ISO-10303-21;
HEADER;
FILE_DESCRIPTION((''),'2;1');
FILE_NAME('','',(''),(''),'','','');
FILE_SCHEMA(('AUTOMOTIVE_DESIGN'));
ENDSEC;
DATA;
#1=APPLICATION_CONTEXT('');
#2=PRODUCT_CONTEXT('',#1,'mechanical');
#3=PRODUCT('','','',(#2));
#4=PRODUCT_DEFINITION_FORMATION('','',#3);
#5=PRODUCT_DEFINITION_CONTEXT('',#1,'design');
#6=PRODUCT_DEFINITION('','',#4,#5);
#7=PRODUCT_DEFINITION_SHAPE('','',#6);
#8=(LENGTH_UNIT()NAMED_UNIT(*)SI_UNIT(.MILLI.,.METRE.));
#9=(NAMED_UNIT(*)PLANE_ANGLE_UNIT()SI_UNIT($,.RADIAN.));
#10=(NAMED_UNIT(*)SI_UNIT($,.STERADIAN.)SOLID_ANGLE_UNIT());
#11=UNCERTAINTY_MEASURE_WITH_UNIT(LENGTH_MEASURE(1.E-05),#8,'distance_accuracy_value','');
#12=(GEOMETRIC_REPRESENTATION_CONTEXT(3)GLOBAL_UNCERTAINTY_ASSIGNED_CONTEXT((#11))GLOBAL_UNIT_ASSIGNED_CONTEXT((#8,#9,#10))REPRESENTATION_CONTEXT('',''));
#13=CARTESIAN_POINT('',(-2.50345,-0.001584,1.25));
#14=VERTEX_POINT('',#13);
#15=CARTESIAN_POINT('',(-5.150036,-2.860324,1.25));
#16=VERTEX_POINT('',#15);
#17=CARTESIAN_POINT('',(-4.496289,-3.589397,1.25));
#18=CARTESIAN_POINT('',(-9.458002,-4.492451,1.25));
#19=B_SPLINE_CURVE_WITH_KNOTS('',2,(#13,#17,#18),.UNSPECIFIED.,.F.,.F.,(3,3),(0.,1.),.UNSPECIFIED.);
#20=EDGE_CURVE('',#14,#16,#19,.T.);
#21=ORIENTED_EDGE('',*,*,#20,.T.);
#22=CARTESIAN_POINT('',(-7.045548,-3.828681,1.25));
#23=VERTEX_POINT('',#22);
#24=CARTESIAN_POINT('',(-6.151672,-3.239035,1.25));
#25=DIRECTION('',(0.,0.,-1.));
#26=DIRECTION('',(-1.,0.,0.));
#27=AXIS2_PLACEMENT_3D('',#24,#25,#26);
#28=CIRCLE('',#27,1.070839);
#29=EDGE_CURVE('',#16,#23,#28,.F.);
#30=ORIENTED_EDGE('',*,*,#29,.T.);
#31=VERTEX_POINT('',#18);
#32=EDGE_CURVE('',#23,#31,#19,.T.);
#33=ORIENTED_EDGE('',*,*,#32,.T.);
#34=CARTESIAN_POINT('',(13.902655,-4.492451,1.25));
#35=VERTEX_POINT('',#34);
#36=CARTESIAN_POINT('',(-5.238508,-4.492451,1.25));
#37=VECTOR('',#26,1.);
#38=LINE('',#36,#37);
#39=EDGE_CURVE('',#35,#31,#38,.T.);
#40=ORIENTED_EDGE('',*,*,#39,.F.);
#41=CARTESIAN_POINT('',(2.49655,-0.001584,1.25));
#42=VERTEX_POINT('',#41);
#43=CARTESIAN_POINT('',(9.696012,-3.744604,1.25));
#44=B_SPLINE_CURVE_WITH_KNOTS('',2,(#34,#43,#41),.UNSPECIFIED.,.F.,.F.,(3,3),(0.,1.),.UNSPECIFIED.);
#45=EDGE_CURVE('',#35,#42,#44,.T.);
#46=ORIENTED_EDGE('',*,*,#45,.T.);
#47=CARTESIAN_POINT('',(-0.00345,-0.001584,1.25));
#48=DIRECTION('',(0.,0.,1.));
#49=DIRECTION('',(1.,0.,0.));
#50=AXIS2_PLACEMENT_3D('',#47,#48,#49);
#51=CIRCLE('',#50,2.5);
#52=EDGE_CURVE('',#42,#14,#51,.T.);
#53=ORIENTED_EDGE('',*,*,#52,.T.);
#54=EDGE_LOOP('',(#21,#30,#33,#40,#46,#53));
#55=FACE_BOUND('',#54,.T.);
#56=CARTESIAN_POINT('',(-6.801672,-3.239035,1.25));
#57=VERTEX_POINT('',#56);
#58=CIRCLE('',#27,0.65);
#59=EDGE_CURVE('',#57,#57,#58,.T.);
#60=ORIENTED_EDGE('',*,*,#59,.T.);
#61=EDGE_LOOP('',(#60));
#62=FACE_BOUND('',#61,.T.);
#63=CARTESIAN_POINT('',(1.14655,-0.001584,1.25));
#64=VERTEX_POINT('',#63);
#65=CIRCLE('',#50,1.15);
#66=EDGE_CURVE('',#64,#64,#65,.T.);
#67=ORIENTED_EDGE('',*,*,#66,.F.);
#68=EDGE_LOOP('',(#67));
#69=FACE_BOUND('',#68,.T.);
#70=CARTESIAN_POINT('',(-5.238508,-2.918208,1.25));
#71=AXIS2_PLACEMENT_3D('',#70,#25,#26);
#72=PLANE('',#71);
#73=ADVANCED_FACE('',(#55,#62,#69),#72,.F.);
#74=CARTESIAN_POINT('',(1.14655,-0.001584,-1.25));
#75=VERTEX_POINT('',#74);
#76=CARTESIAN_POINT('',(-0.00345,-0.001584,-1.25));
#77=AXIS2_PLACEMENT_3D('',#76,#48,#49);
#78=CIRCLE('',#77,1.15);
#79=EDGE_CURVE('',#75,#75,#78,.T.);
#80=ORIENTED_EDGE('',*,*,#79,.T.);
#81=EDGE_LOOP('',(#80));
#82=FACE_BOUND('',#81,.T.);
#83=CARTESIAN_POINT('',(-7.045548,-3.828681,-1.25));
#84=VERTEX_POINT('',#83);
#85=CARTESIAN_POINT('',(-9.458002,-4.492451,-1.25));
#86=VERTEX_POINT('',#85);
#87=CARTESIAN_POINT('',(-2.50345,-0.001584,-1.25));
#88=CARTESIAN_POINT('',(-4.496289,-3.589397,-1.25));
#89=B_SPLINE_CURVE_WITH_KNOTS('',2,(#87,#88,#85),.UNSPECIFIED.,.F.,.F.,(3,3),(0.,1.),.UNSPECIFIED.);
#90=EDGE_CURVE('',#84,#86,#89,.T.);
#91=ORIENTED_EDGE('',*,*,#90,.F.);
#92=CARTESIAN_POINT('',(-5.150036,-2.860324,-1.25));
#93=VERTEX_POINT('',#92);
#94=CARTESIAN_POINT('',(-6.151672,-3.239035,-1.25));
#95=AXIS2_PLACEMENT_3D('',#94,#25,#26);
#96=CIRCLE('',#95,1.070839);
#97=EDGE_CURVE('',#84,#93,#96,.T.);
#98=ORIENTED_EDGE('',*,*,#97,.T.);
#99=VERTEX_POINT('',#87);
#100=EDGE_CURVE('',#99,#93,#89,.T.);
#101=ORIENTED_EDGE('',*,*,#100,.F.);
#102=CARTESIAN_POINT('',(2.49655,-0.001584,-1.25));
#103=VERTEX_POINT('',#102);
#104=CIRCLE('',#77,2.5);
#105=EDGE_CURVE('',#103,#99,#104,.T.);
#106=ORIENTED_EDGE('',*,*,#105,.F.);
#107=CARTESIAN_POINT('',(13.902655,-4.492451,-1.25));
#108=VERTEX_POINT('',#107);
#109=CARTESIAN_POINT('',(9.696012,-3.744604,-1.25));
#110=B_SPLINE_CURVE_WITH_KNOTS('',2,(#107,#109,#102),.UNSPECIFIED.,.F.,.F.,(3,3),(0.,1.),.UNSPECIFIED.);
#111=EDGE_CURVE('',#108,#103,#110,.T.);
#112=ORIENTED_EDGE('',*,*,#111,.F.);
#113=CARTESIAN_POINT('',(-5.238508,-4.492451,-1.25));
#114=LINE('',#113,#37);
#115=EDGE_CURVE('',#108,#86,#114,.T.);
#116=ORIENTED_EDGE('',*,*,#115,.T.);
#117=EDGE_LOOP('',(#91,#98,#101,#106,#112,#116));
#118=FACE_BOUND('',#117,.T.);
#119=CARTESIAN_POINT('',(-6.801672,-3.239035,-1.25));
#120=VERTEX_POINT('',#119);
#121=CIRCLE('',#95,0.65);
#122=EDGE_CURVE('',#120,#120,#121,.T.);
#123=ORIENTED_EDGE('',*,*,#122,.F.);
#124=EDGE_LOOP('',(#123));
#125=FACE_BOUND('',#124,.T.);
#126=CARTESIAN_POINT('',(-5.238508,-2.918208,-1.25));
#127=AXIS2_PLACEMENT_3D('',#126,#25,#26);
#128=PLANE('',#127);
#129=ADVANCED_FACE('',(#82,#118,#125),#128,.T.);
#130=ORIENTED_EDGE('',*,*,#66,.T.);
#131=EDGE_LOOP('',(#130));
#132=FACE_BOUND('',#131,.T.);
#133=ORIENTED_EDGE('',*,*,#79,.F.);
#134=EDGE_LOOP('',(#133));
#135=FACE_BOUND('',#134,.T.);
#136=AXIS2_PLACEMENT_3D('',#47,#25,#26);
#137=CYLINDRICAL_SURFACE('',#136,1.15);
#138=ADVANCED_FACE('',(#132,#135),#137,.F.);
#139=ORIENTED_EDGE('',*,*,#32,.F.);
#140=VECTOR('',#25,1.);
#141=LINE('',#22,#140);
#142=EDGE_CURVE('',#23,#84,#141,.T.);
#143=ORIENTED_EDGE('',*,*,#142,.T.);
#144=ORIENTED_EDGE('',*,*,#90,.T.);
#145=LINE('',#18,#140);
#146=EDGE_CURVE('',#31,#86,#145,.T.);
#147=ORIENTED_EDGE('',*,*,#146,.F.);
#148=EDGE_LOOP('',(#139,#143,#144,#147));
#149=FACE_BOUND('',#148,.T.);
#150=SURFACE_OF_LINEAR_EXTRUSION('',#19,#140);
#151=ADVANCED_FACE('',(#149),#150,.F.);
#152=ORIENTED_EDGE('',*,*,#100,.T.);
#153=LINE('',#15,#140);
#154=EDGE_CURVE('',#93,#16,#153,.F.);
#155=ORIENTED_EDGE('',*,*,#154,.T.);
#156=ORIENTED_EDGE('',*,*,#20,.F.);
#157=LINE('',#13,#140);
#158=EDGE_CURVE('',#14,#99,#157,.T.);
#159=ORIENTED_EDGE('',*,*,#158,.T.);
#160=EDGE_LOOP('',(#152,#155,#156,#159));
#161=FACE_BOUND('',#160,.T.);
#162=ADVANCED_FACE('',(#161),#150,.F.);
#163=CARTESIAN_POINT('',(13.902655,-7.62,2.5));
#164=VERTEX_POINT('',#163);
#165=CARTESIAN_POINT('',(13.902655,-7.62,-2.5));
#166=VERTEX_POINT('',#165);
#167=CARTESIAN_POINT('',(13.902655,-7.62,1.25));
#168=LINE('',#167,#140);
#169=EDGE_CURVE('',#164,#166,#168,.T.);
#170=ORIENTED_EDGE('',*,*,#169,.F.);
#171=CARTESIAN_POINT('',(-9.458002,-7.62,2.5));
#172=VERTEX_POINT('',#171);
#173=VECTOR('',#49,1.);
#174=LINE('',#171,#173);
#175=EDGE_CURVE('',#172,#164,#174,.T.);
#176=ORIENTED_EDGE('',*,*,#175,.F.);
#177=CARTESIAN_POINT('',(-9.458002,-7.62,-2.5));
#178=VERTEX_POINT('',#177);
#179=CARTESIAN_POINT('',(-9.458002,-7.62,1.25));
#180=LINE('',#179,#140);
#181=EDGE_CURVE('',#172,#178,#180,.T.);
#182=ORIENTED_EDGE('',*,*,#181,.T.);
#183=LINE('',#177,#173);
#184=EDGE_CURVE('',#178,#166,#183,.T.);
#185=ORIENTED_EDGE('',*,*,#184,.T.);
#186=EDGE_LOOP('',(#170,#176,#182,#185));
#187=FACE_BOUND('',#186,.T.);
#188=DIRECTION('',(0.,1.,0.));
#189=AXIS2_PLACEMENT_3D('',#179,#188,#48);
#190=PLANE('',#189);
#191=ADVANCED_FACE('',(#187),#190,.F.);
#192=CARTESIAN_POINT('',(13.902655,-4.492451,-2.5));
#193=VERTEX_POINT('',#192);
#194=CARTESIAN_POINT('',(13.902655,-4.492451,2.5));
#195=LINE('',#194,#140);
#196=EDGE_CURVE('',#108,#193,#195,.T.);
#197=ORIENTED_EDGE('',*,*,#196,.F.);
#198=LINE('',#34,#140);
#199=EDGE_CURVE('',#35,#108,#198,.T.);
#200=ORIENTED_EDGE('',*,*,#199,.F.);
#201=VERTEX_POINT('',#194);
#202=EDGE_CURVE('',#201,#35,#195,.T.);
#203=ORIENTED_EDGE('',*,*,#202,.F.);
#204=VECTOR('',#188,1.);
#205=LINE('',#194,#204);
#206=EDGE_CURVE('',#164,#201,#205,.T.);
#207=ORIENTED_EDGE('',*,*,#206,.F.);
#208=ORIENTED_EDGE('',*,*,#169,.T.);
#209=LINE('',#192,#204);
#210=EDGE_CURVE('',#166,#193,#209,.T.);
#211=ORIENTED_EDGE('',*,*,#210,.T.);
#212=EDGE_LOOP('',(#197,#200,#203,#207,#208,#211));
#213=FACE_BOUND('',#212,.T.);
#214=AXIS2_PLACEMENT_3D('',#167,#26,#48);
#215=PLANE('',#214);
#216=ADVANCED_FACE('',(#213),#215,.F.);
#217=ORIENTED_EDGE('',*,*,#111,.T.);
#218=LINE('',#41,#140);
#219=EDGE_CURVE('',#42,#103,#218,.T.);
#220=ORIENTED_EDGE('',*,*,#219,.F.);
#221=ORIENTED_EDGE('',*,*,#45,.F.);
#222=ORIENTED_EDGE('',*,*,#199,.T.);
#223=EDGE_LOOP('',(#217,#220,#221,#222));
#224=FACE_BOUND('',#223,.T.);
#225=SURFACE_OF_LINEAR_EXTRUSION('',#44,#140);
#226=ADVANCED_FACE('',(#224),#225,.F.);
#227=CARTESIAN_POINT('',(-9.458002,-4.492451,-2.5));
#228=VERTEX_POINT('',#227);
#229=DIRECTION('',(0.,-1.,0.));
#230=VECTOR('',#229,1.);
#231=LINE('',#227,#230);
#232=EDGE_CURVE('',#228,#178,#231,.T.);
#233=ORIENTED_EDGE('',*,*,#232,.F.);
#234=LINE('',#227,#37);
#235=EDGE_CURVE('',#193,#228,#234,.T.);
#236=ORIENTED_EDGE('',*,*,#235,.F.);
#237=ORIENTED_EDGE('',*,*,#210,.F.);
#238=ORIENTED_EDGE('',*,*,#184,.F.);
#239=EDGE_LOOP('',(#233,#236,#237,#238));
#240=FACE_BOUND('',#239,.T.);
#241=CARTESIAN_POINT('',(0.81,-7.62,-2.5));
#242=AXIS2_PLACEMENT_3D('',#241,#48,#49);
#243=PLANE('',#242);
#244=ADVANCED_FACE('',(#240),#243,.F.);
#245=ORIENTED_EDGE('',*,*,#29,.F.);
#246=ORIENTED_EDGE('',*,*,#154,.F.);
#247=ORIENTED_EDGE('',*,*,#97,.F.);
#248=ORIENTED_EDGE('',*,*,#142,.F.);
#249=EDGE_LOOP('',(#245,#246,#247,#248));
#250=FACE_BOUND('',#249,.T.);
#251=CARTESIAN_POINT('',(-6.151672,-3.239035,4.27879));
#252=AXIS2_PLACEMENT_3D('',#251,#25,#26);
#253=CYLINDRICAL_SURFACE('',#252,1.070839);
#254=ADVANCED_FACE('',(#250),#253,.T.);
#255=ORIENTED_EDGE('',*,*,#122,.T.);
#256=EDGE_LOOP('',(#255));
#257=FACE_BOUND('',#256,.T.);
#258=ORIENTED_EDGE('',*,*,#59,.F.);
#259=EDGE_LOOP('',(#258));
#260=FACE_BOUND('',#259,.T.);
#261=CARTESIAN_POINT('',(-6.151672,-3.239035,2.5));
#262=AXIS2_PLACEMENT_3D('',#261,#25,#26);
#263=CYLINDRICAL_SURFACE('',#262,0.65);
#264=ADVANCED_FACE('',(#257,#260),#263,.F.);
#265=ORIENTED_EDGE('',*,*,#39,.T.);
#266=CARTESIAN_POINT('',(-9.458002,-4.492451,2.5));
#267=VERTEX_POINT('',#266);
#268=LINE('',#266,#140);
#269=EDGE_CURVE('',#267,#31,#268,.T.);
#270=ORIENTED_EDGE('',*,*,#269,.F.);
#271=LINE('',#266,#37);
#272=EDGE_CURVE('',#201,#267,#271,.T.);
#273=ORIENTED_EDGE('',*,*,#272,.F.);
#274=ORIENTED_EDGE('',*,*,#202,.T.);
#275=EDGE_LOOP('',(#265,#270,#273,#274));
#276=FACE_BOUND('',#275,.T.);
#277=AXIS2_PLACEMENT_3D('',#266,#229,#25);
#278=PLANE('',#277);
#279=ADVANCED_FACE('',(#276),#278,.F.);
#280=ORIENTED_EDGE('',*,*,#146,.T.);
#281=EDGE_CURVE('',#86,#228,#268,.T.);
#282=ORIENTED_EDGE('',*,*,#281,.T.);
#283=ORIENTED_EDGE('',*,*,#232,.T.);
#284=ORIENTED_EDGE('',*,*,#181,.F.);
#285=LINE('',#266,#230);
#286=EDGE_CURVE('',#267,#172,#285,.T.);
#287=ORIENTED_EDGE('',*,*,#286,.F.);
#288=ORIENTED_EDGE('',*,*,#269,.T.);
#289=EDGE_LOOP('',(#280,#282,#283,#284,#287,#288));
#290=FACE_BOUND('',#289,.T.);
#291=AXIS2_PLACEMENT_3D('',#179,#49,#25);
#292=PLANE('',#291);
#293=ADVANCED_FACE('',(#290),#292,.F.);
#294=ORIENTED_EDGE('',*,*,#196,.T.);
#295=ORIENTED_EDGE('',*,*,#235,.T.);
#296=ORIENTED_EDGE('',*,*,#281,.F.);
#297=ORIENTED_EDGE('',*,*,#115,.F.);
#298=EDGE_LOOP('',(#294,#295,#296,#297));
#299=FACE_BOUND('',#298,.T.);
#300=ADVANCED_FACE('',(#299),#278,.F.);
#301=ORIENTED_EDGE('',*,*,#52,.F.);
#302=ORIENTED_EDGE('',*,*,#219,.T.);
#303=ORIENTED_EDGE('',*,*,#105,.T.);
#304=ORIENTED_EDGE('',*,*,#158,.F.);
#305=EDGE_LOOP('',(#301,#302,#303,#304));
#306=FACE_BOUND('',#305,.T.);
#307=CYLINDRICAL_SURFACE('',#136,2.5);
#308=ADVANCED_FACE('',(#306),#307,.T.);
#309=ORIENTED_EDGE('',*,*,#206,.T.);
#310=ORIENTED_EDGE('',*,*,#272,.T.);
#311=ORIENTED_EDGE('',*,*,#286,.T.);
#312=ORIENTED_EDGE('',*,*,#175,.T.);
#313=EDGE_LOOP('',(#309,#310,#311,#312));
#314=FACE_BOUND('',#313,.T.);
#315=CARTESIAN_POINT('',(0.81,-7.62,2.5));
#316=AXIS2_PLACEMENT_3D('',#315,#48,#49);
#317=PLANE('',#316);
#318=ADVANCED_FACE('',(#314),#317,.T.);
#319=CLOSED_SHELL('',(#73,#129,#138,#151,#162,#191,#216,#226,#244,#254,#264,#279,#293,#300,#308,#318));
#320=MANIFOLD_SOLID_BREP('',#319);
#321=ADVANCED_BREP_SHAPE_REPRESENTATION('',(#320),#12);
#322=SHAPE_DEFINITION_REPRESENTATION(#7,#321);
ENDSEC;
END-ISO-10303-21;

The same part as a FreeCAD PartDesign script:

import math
import FreeCAD as App
import Part
import Sketcher

V = App.Vector


def add_polygon(sketch, points):
    """Adds a closed chain of lines whose ends are joined by coincident constraints."""
    first, n = sketch.GeometryCount, len(points)
    for a, b in zip(points, points[1:] + points[:1]):
        sketch.addGeometry(Part.LineSegment(App.Vector(*a, 0), App.Vector(*b, 0)), False)
    for i in range(n):
        sketch.addConstraint(Sketcher.Constraint("Coincident", first + i, 2, first + (i + 1) % n, 1))

doc = App.newDocument("Part")
params = doc.addObject("Spreadsheet::Sheet", "Params")
for row, (alias, value) in enumerate([
    ("sketch1_diameter", "2.3 mm"),
    ("pad1_length", "2.5 mm"),
    ("pad2_length", "5 mm"),
    ("pad3_length", "2.5 mm"),
    ("sketch4_diameter", "1.3 mm"),
], start=1):
    params.set(f"A{row}", alias)
    params.set(f"B{row}", "=" + value)
    params.setAlias(f"B{row}", alias)

body = doc.addObject("PartDesign::Body", "Body")

# Sketch on XY plane
sketch1 = body.newObject("Sketcher::SketchObject", "Sketch")
sketch1.AttachmentSupport = (doc.getObject("XY_Plane"), [""])
sketch1.MapMode = "FlatFace"
sketch1.addGeometry([
    Part.LineSegment(V(-10.268002, 0, 0), V(13.092655, 0, 0)),  # 0
    Part.LineSegment(V(13.092655, 0, 0), V(13.092655, 3.127549, 0)),  # 1
    Part.BSplineCurve([V(1.68655, 7.618416, 0), V(8.886012, 3.875396, 0), V(13.092655, 3.127549, 0)], [3, 3], [0, 1], False, 2, [1, 1, 1], False),  # 2
    Part.ArcOfCircle(Part.Circle(V(-0.81345, 7.618416, 0), V(0, 0, 1), 2.5), math.radians(0), math.radians(180)),  # 3
    Part.BSplineCurve([V(-10.268002, 3.127549, 0), V(-5.306289, 4.030603, 0), V(-3.31345, 7.618416, 0)], [3, 3], [0, 1], False, 2, [1, 1, 1], False),  # 4
    Part.LineSegment(V(-10.268002, 3.127549, 0), V(-10.268002, 0, 0)),  # 5
    Part.Circle(V(-0.81345, 7.618416, 0), V(0, 0, 1), 1.15),  # 6
], False)
sketch1.addConstraint([
    Sketcher.Constraint("Block", 2),
    Sketcher.Constraint("Block", 4),
    Sketcher.Constraint("Coincident", 0, 2, 1, 1),
    Sketcher.Constraint("Coincident", 1, 2, 2, 2),
    Sketcher.Constraint("Coincident", 2, 1, 3, 1),
    Sketcher.Constraint("Coincident", 3, 2, 4, 2),
    Sketcher.Constraint("Coincident", 4, 1, 5, 1),
    Sketcher.Constraint("Coincident", 5, 2, 0, 1),
    Sketcher.Constraint("Horizontal", 0),
    Sketcher.Constraint("Vertical", 1),
    Sketcher.Constraint("Vertical", 5),
    Sketcher.Constraint("Coincident", 6, 3, 3, 3),
    Sketcher.Constraint("PointOnObject", 0, 2, -1),
    Sketcher.Constraint("Diameter", 6, 2.3),
    Sketcher.Constraint("DistanceY", -1, 1, 3, 3, 7.618416),
])
sketch1.setExpression("Constraints[13]", "Params.sketch1_diameter")
pad1 = body.newObject("PartDesign::Pad", "Pad")
pad1.Profile = sketch1
pad1.setExpression("Length", "Params.pad1_length")
pad1.Midplane = True

# Sketch on XY plane
sketch2 = body.newObject("Sketcher::SketchObject", "Sketch001")
sketch2.AttachmentSupport = (doc.getObject("XY_Plane"), [""])
sketch2.MapMode = "FlatFace"
add_polygon(sketch2, [(-10.3, 3.1), (-10.3, 0), (13.1, 0), (13.1, 3.1)])  # lines 0-3
sketch2.addConstraint([
    Sketcher.Constraint("Vertical", 0),
    Sketcher.Constraint("Horizontal", 1),
    Sketcher.Constraint("Vertical", 2),
    Sketcher.Constraint("Horizontal", 3),
    Sketcher.Constraint("PointOnObject", 0, 2, -1),
    Sketcher.Constraint("DistanceY", 0, 2, 0, 1, 3.127549),
    Sketcher.Constraint("DistanceX", 1, 1, 1, 2, 23.360657),
    Sketcher.Constraint("DistanceX", 0, 2, -1, 1, 10.268002),
])
pad2 = body.newObject("PartDesign::Pad", "Pad001")
pad2.Profile = sketch2
pad2.setExpression("Length", "Params.pad2_length")
pad2.Midplane = True

# Sketch on XY plane
sketch3 = body.newObject("Sketcher::SketchObject", "Sketch002")
sketch3.AttachmentSupport = (doc.getObject("XY_Plane"), [""])
sketch3.MapMode = "FlatFace"
sketch3.AttachmentOffset = App.Placement(V(0, 0, -1.25), App.Rotation())
sketch3.addGeometry(Part.Circle(V(-7, 4.4, 0), V(0, 0, 1), 1.1), False)
sketch3.addConstraint([
    Sketcher.Constraint("Diameter", 0, 2.141678),
    Sketcher.Constraint("DistanceX", 0, 3, -1, 1, 6.961672),
    Sketcher.Constraint("DistanceY", -1, 1, 0, 3, 4.380965),
])
pad3 = body.newObject("PartDesign::Pad", "Pad002")
pad3.Profile = sketch3
pad3.setExpression("Length", "Params.pad3_length")

# Sketch on XY plane
sketch4 = body.newObject("Sketcher::SketchObject", "Sketch003")
sketch4.AttachmentSupport = (doc.getObject("XY_Plane"), [""])
sketch4.MapMode = "FlatFace"
sketch4.AttachmentOffset = App.Placement(V(0, 0, -1.25), App.Rotation())
sketch4.addGeometry(Part.Circle(V(-7, 4.4, 0), V(0, 0, 1), 0.7), False)
sketch4.addConstraint([
    Sketcher.Constraint("Diameter", 0, 1.3),
    Sketcher.Constraint("DistanceX", 0, 3, -1, 1, 6.961672),
    Sketcher.Constraint("DistanceY", -1, 1, 0, 3, 4.380965),
])
sketch4.setExpression("Constraints[0]", "Params.sketch4_diameter")
pocket1 = body.newObject("PartDesign::Pocket", "Pocket")
pocket1.Profile = sketch4
pocket1.Type = "ThroughAll"
pocket1.Midplane = True
body2 = doc.addObject("PartDesign::Body", "Body001")
doc.recompute()

body.Placement = App.Placement(V(0.81, -7.62, 0), App.Rotation(V(0, 0, 1), 0))
boolean = body2.newObject("PartDesign::Boolean", "Boolean")
boolean.Type = "Fuse"
boolean.addObjects([body])

doc.recompute()
